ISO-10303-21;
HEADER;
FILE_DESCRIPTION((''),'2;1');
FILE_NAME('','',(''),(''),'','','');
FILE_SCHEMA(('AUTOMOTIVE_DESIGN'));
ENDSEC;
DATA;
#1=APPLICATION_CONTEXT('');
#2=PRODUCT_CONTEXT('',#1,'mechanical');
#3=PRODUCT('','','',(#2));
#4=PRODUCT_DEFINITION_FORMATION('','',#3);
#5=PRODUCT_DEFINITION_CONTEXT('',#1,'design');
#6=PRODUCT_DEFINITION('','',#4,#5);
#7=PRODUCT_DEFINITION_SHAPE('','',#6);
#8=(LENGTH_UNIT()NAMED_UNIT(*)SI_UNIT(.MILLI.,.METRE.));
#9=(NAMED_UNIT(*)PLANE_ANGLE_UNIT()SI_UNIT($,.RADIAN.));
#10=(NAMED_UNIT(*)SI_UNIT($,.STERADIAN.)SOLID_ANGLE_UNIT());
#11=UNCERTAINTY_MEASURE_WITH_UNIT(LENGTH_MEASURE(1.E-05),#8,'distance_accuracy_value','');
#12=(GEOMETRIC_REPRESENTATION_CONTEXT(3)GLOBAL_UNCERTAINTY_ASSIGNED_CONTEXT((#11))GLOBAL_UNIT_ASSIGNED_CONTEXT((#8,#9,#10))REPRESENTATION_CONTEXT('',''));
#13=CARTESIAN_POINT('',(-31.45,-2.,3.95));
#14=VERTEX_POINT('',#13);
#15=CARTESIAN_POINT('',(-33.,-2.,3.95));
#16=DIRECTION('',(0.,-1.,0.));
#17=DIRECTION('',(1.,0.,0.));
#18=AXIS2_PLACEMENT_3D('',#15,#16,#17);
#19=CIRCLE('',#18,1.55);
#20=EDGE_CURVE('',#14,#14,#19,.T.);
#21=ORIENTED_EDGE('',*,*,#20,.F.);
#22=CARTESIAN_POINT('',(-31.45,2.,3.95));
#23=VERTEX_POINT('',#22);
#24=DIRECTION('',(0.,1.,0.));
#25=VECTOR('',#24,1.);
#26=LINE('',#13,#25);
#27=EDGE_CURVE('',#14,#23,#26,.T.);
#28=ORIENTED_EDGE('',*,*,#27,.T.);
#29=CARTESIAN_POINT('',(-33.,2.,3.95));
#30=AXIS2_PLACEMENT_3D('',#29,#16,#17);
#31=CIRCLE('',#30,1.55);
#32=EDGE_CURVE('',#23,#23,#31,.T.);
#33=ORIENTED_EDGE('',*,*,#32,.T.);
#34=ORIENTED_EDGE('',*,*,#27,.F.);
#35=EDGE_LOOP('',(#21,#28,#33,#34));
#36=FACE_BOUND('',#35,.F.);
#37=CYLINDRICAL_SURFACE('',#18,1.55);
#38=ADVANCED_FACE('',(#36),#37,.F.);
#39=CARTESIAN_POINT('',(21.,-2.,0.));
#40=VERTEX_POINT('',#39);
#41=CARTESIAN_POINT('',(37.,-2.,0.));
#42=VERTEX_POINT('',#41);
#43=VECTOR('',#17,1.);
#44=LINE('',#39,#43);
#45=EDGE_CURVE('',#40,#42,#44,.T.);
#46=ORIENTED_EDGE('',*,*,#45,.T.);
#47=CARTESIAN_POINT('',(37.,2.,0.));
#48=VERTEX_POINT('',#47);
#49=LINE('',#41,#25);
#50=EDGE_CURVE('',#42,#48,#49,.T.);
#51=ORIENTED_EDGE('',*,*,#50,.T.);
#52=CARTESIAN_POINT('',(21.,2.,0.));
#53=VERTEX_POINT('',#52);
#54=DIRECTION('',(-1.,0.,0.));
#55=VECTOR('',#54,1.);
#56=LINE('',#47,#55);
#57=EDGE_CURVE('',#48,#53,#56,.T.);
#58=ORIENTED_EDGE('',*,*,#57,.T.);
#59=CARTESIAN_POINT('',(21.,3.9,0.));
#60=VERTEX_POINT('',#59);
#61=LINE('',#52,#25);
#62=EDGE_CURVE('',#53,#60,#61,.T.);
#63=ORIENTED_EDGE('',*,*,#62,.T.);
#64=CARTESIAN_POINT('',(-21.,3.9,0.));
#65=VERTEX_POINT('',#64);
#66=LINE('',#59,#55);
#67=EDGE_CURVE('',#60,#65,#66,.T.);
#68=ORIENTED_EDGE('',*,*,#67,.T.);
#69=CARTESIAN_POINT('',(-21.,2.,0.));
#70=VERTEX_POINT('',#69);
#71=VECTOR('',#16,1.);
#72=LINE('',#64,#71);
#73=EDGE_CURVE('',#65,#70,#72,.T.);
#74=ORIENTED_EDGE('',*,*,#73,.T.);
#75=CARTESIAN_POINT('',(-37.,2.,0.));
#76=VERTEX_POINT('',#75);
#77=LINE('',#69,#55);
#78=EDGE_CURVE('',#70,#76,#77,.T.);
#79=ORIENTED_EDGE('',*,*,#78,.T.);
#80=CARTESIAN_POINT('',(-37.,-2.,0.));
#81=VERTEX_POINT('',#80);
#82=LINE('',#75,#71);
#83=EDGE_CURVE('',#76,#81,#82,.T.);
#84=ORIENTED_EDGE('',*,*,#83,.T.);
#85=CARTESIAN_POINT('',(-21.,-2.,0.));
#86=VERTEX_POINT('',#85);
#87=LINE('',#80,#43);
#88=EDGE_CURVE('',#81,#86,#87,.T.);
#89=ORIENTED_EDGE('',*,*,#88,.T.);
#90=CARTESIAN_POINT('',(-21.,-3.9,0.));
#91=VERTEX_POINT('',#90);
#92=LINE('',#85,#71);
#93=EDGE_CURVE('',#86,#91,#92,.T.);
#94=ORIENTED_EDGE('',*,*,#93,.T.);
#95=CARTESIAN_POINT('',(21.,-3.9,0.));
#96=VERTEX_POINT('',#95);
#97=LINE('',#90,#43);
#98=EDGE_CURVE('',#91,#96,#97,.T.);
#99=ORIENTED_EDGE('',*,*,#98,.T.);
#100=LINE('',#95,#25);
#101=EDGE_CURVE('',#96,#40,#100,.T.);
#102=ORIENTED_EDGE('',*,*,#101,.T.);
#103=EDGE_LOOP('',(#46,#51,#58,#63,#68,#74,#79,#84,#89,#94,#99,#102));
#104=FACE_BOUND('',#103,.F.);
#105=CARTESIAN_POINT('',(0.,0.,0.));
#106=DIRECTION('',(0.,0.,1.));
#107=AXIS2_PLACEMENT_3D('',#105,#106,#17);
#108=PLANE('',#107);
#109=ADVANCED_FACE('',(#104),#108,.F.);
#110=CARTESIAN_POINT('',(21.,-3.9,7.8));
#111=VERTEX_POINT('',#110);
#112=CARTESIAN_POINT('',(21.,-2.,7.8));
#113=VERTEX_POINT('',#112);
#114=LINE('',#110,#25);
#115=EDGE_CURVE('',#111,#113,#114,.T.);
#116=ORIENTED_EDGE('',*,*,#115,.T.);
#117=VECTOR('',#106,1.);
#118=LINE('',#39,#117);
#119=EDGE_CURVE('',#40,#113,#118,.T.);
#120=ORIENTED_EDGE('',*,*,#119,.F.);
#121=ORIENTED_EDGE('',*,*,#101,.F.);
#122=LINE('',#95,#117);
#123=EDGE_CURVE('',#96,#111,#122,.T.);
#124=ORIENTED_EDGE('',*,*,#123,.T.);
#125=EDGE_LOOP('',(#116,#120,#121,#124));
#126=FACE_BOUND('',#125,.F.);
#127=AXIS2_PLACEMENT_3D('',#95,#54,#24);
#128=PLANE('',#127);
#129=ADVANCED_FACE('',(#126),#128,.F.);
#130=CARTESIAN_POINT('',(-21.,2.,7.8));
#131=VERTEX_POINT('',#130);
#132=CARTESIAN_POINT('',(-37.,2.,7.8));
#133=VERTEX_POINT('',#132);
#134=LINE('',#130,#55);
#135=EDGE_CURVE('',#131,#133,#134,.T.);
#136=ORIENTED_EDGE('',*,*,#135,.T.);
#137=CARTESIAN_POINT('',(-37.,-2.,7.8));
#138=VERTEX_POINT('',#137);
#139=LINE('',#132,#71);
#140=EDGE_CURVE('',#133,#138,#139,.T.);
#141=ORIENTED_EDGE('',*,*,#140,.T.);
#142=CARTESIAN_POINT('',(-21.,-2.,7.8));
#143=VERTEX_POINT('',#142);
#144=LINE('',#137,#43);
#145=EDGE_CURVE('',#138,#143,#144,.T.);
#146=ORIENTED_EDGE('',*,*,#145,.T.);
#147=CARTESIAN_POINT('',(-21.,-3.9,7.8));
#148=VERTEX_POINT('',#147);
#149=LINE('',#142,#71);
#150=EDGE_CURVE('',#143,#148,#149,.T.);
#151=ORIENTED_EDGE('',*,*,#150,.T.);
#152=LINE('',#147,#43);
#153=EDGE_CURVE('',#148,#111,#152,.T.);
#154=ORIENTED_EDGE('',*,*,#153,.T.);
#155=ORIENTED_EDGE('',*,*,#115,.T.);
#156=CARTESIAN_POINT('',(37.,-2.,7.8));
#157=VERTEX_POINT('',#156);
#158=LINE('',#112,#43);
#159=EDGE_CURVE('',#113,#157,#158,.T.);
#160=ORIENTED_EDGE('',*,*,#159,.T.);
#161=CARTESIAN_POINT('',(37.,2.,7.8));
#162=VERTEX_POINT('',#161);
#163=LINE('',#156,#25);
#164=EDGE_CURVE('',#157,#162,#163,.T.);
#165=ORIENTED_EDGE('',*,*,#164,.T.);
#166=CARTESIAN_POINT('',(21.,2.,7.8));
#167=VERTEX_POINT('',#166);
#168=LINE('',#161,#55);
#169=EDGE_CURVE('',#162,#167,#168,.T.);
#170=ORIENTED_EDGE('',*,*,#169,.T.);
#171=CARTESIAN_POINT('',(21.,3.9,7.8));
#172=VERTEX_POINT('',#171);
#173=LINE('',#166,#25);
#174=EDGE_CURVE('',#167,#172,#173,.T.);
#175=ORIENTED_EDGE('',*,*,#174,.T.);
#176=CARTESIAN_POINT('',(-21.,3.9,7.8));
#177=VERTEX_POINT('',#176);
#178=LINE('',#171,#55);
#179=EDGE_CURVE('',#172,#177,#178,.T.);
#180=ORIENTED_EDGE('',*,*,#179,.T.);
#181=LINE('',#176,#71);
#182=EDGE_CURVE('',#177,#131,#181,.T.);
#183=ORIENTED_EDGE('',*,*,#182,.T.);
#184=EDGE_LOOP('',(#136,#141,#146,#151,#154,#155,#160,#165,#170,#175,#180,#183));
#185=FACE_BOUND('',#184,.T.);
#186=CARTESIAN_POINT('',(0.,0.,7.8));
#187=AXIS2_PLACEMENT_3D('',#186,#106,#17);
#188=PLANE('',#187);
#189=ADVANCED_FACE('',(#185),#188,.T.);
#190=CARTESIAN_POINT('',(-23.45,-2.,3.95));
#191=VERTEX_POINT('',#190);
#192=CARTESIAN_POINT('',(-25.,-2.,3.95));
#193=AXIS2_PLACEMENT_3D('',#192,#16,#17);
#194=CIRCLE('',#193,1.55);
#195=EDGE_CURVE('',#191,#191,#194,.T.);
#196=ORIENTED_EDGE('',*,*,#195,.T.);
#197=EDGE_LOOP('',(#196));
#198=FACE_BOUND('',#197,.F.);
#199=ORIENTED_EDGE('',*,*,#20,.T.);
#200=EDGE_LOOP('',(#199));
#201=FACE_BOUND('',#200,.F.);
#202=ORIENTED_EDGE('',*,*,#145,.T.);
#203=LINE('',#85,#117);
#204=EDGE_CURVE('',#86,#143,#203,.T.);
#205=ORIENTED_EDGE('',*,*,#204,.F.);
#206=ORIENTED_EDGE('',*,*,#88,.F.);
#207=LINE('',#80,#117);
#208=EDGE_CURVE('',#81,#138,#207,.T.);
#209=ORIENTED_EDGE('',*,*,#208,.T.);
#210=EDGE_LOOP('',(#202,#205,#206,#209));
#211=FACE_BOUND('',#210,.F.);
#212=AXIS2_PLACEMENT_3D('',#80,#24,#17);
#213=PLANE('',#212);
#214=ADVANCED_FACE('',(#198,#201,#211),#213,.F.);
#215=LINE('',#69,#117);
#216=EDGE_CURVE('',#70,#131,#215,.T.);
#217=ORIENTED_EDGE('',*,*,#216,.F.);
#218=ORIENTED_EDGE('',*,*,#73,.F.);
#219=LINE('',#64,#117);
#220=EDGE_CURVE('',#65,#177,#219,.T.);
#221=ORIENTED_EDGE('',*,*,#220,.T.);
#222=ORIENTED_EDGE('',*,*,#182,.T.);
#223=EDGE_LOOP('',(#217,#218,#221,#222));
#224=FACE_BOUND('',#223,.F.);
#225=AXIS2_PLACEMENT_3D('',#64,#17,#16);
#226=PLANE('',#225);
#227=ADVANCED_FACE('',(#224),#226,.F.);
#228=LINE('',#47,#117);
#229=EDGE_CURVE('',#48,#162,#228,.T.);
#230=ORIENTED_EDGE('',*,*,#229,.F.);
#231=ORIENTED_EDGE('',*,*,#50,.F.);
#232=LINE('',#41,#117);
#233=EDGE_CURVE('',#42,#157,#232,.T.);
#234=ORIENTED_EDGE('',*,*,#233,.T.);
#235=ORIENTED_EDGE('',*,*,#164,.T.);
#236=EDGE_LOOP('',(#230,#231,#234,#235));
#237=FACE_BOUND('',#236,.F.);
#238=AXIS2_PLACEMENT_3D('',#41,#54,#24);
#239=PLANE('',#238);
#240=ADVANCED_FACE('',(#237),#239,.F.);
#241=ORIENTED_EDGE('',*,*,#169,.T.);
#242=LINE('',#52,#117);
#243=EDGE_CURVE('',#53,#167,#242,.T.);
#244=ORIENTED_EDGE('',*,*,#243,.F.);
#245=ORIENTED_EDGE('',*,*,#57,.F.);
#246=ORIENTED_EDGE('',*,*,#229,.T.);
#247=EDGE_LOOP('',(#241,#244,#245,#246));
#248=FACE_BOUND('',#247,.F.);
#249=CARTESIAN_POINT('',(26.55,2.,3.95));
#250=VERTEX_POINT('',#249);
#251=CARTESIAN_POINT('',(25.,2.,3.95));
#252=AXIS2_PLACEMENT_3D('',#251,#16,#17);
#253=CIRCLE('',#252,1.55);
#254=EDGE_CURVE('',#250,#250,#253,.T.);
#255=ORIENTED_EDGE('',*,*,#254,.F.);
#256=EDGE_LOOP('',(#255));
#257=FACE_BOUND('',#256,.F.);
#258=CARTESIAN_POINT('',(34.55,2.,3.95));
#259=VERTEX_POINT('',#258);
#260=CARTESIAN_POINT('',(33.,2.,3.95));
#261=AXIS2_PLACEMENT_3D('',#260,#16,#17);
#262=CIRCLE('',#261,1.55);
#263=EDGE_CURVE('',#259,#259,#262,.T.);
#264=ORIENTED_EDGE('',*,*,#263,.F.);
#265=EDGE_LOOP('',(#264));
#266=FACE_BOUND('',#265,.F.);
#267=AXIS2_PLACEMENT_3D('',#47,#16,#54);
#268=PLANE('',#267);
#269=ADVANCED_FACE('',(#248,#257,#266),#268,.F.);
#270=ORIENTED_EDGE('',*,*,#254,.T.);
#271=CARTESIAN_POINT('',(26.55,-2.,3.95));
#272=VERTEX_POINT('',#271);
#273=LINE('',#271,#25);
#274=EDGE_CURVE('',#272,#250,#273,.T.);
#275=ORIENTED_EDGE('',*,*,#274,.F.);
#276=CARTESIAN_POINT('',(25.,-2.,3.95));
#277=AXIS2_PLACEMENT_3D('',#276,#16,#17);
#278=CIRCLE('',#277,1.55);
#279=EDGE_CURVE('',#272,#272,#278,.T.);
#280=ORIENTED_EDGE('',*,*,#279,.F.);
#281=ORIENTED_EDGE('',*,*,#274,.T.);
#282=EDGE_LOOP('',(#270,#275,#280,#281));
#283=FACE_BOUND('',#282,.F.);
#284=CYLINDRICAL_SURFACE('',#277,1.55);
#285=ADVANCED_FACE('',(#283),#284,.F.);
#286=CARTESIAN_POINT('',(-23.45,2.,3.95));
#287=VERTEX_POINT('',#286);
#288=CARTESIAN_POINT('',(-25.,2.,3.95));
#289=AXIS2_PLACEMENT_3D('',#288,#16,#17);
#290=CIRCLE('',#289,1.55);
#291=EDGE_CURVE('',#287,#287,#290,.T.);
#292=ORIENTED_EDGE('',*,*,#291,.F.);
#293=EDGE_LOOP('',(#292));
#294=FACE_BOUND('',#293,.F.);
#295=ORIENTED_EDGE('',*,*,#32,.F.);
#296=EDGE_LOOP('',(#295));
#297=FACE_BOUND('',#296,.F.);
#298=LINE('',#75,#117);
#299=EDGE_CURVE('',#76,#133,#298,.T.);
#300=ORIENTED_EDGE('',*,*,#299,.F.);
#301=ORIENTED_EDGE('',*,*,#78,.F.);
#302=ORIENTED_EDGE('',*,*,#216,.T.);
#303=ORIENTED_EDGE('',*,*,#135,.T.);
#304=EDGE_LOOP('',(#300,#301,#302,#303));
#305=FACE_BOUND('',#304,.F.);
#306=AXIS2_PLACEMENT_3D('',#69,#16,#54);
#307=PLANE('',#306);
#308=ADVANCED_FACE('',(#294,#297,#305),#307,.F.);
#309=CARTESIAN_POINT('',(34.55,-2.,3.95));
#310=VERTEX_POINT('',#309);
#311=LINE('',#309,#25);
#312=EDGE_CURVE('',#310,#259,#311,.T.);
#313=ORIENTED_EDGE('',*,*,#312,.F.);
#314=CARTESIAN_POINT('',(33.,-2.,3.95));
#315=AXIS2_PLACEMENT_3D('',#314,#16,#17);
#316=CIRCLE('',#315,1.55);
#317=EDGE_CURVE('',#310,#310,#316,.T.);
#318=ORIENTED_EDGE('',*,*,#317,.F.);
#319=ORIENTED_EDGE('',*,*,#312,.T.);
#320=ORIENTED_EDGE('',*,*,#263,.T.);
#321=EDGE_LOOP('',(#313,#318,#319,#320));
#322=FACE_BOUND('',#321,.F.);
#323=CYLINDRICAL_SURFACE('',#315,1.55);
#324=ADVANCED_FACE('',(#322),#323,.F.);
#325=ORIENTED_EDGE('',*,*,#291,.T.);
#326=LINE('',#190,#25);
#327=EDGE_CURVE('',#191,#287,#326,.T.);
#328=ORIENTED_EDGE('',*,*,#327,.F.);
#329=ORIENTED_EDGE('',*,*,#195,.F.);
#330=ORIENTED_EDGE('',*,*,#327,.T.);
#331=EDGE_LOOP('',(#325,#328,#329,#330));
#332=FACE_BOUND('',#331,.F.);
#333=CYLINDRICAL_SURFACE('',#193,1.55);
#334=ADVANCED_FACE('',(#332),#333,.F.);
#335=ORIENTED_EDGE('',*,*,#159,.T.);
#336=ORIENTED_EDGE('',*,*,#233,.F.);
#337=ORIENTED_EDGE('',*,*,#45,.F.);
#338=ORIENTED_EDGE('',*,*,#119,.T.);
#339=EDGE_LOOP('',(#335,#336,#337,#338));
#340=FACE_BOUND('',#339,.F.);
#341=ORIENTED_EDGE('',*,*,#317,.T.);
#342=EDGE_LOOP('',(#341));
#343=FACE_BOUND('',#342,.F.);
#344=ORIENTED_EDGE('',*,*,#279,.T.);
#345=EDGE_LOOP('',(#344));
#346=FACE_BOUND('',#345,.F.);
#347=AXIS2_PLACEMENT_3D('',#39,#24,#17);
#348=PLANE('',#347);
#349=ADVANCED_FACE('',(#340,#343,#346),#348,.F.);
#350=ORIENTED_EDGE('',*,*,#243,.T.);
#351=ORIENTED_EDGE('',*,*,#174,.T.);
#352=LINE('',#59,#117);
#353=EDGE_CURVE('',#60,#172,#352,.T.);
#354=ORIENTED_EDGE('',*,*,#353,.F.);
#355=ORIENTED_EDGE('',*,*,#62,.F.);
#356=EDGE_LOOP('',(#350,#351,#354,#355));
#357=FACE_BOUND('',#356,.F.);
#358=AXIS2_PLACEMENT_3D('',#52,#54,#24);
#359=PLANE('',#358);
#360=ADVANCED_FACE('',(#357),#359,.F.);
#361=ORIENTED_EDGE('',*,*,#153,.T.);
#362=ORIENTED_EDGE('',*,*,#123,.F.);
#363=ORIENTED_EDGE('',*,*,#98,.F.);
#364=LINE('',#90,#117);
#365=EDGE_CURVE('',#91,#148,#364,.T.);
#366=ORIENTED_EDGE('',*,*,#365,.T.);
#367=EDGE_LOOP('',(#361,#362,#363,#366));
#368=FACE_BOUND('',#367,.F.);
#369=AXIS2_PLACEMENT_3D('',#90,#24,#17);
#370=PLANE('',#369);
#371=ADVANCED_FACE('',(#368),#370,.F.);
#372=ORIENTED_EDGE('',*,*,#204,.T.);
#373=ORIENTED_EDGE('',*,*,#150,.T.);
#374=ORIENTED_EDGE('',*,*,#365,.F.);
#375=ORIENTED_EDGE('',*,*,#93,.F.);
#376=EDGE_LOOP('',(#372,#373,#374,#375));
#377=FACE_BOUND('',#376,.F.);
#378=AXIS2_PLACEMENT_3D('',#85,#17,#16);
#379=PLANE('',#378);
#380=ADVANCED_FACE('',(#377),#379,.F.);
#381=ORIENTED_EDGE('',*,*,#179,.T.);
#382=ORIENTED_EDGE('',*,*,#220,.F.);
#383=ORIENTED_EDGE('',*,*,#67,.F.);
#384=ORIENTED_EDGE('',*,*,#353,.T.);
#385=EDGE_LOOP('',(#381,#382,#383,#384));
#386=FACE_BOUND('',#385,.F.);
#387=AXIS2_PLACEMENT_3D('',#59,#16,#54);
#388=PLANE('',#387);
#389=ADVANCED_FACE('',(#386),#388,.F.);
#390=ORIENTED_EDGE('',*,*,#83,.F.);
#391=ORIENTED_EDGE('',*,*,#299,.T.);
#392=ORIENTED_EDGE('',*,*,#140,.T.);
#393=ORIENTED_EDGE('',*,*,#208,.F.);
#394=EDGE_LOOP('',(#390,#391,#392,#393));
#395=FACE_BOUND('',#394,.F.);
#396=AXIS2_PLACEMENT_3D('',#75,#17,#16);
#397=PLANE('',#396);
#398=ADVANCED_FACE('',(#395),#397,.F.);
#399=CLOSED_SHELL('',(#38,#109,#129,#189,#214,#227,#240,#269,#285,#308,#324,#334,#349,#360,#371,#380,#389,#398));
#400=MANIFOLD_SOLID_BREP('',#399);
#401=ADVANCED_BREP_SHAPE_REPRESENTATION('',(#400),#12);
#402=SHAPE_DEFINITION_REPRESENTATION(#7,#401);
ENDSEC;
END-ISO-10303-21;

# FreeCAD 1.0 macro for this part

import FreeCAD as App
import Part
import Sketcher
Q = App.Units.Quantity


def add_polygon(sketch, points):
    """Adds a closed chain of lines whose ends are joined by coincident constraints."""
    first, n = sketch.GeometryCount, len(points)
    for a, b in zip(points, points[1:] + points[:1]):
        sketch.addGeometry(Part.LineSegment(App.Vector(*a, 0), App.Vector(*b, 0)), False)
    for i in range(n):
        sketch.addConstraint(Sketcher.Constraint("Coincident", first + i, 2, first + (i + 1) % n, 1))

doc = App.newDocument("Part")
body = doc.addObject("PartDesign::Body", "Body")

sketch1 = body.newObject("Sketcher::SketchObject", "Sketch")
sketch1.AttachmentSupport = (doc.getObject("XY_Plane"), [""])
sketch1.MapMode = "FlatFace"
add_polygon(sketch1, [(37, -2), (37, 2), (21, 2), (21, 3.9), (-21, 3.9), (-21, 2), (-37, 2), (-37, -2), (-21, -2), (-21, -3.9), (21, -3.9), (21, -2)])
sketch1.addConstraint([
    Sketcher.Constraint("Vertical", 0),
    Sketcher.Constraint("Horizontal", 1),
    Sketcher.Constraint("Vertical", 2),
    Sketcher.Constraint("Horizontal", 3),
    Sketcher.Constraint("Vertical", 4),
    Sketcher.Constraint("Horizontal", 5),
    Sketcher.Constraint("Vertical", 6),
    Sketcher.Constraint("Horizontal", 7),
    Sketcher.Constraint("Vertical", 8),
    Sketcher.Constraint("Horizontal", 9),
    Sketcher.Constraint("Vertical", 10),
    Sketcher.Constraint("Horizontal", 11),
    Sketcher.Constraint("Symmetric", 0, 2, 6, 2, -1, 1),
    Sketcher.Constraint("Symmetric", 2, 2, 8, 2, -1, 1),
    Sketcher.Constraint("Symmetric", 4, 2, 10, 2, -1, 1),
    Sketcher.Constraint("Symmetric", 1, 2, 4, 2, -2),
    Sketcher.Constraint("DistanceX", 1, 2, 1, 1, Q("16 mm")),
    Sketcher.Constraint("DistanceX", 3, 2, 3, 1, Q("42 mm")),
    Sketcher.Constraint("DistanceY", 0, 1, 0, 2, Q("4 mm")),
    Sketcher.Constraint("DistanceY", 2, 1, 2, 2, Q("1.9 mm")),
])
pad1 = body.newObject("PartDesign::Pad", "Pad")
pad1.Profile = sketch1
pad1.Length = 7.8

sketch2 = body.newObject("Sketcher::SketchObject", "Sketch001")
sketch2.AttachmentSupport = (doc.getObject("XZ_Plane"), [""])
sketch2.MapMode = "FlatFace"
sketch2.AttachmentOffset = App.Placement(App.Vector(0, 0, 2), App.Rotation())
sketch2.addGeometry([
    Part.Circle(App.Vector(-33, 4, 0), App.Vector(0, 0, 1), 1.6),
    Part.Circle(App.Vector(-25, 4, 0), App.Vector(0, 0, 1), 1.6),
    Part.Circle(App.Vector(25, 4, 0), App.Vector(0, 0, 1), 1.6),
    Part.Circle(App.Vector(33, 4, 0), App.Vector(0, 0, 1), 1.6),
], False)
sketch2.addConstraint([
    Sketcher.Constraint("Equal", 0, 1),
    Sketcher.Constraint("Equal", 1, 2),
    Sketcher.Constraint("Equal", 2, 3),
    Sketcher.Constraint("Symmetric", 1, 3, 2, 3, -2),
    Sketcher.Constraint("Symmetric", 0, 3, 3, 3, -2),
    Sketcher.Constraint("Horizontal", 0, 3, 1, 3),
    Sketcher.Constraint("Diameter", 0, Q("3.1 mm")),
    Sketcher.Constraint("DistanceX", 0, 3, -1, 1, Q("33 mm")),
    Sketcher.Constraint("DistanceX", 1, 3, -1, 1, Q("25 mm")),
    Sketcher.Constraint("DistanceY", -1, 1, 0, 3, Q("3.95 mm")),
])
pocket1 = body.newObject("PartDesign::Pocket", "Pocket")
pocket1.Profile = sketch2
pocket1.Type = "ThroughAll"

sketch3 = body.newObject("Sketcher::SketchObject", "Sketch002")
sketch3.AttachmentSupport = (doc.getObject("XZ_Plane"), [""])
sketch3.MapMode = "FlatFace"
sketch3.AttachmentOffset = App.Placement(App.Vector(0, 0, 2), App.Rotation())
sketch3.addGeometry([
    Part.Circle(App.Vector(-33, 4, 0), App.Vector(0, 0, 1), 1.6),
    Part.Circle(App.Vector(-25, 4, 0), App.Vector(0, 0, 1), 1.6),
    Part.Circle(App.Vector(25, 4, 0), App.Vector(0, 0, 1), 1.6),
    Part.Circle(App.Vector(33, 4, 0), App.Vector(0, 0, 1), 1.6),
], False)
sketch3.addConstraint([
    Sketcher.Constraint("Equal", 0, 1),
    Sketcher.Constraint("Equal", 1, 2),
    Sketcher.Constraint("Equal", 2, 3),
    Sketcher.Constraint("Symmetric", 1, 3, 2, 3, -2),
    Sketcher.Constraint("Symmetric", 0, 3, 3, 3, -2),
    Sketcher.Constraint("Horizontal", 0, 3, 1, 3),
    Sketcher.Constraint("Diameter", 0, Q("3.1 mm")),
    Sketcher.Constraint("DistanceX", 0, 3, -1, 1, Q("33 mm")),
    Sketcher.Constraint("DistanceX", 1, 3, -1, 1, Q("25 mm")),
    Sketcher.Constraint("DistanceY", -1, 1, 0, 3, Q("3.95 mm")),
])
pocket2 = body.newObject("PartDesign::Pocket", "Pocket001")
pocket2.Profile = sketch3
pocket2.Type = "ThroughAll"

doc.recompute()
